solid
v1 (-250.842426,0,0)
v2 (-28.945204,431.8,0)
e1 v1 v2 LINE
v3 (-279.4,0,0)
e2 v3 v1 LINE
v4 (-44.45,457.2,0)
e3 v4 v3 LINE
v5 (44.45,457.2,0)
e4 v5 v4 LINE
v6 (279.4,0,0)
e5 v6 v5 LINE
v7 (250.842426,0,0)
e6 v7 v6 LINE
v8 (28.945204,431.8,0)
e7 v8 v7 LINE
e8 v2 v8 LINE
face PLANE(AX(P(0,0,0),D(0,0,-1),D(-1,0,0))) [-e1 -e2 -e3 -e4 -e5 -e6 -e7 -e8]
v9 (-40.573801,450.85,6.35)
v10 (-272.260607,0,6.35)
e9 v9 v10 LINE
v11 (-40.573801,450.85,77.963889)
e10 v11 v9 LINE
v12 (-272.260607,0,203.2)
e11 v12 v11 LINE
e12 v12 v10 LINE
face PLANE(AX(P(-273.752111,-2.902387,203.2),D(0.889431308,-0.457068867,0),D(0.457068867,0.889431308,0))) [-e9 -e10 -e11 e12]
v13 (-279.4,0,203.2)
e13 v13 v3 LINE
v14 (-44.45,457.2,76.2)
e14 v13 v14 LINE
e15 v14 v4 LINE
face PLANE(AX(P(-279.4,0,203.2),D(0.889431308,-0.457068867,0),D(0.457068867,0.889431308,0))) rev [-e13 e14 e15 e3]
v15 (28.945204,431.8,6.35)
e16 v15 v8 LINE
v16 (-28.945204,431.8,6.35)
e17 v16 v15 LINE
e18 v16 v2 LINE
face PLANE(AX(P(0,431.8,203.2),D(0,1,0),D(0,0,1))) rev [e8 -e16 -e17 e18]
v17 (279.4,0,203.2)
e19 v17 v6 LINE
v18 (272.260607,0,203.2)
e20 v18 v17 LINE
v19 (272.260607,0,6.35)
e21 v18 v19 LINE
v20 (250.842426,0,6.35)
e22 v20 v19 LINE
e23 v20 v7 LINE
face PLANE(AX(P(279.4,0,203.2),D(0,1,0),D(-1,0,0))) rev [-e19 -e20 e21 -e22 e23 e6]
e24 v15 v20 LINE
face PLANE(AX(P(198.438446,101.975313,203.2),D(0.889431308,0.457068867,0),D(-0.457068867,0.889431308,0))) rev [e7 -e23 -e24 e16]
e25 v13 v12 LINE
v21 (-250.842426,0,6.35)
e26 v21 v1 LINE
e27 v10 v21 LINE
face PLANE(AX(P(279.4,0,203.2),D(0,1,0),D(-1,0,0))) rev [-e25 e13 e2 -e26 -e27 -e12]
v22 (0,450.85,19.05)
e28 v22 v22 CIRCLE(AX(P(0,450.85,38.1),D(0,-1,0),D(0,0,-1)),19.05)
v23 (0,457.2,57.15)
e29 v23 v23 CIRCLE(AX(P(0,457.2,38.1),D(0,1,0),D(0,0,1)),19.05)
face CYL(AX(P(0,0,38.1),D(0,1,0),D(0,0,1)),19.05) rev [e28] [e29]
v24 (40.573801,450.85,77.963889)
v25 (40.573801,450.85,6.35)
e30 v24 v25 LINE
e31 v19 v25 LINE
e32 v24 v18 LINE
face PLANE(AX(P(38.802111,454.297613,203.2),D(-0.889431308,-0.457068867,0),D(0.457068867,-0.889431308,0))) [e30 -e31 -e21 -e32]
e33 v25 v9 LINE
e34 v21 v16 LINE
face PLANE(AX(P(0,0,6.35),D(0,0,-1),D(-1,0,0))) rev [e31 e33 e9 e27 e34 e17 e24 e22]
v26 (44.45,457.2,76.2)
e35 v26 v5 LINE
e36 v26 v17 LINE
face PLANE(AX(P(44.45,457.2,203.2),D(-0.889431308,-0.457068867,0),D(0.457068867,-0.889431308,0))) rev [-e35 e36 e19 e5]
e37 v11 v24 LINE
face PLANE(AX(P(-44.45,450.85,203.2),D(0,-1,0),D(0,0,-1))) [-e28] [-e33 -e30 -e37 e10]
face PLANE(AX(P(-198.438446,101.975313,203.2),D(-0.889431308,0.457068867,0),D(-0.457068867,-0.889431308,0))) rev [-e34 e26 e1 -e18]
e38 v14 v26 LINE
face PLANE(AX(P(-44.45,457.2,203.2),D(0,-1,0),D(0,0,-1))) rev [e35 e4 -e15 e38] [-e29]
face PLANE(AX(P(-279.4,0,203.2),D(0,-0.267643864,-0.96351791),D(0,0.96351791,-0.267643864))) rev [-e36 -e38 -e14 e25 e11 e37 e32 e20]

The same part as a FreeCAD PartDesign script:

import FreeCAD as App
import Part
import Sketcher
Q = App.Units.Quantity


def faces_at(feature, points):
    """Names of the faces that lie closest to the given points."""
    faces = feature.Shape.Faces
    near = lambda p: min(range(len(faces)), key=lambda i: faces[i].distToShape(Part.Vertex(*p))[0])
    return sorted({f"Face{near(p) + 1}" for p in points})

doc = App.newDocument("Part")
params = doc.addObject("Spreadsheet::Sheet", "Params")
for row, (alias, value) in enumerate([
    ("sketch1_width", "22 in"),
    ("sketch1_width2", "3.5 in"),
    ("pad1_length", "8 in"),
    ("sketch2_width", "18 in"),
    ("sketch2_height", "5 in"),
    ("thickness_wall", "0.25 in"),
    ("sketch4_diameter", "1.5 in"),
], start=1):
    params.set(f"A{row}", alias)
    params.set(f"B{row}", "=" + value)
    params.setAlias(f"B{row}", alias)

body = doc.addObject("PartDesign::Body", "Body")

# Sketch on XY plane
sketch1 = body.newObject("Sketcher::SketchObject", "Sketch")
sketch1.AttachmentSupport = (doc.getObject("XY_Plane"), [""])
sketch1.MapMode = "FlatFace"
sketch1.addGeometry([
    Part.LineSegment(App.Vector(-44.45, 457.2, 0), App.Vector(-279.4, 0, 0)),
    Part.LineSegment(App.Vector(-279.4, 0, 0), App.Vector(279.4, 0, 0)),
    Part.LineSegment(App.Vector(279.4, 0, 0), App.Vector(44.45, 457.2, 0)),
    Part.LineSegment(App.Vector(44.45, 457.2, 0), App.Vector(-44.45, 457.2, 0)),
], False)
sketch1.addConstraint([
    Sketcher.Constraint("Coincident", 0, 2, 1, 1),
    Sketcher.Constraint("Coincident", 1, 2, 2, 1),
    Sketcher.Constraint("Coincident", 2, 2, 3, 1),
    Sketcher.Constraint("Coincident", 3, 2, 0, 1),
    Sketcher.Constraint("Horizontal", 1),
    Sketcher.Constraint("Horizontal", 3),
    Sketcher.Constraint("Symmetric", 0, 2, 1, 2, -1, 1),
    Sketcher.Constraint("Equal", 0, 2),
    Sketcher.Constraint("DistanceX", 1, 1, 1, 2, Q("22 in")),
    Sketcher.Constraint("DistanceX", 3, 2, 3, 1, Q("3.5 in")),
    Sketcher.Constraint("DistanceY", -1, 1, 2, 2, Q("18 in")),
])
sketch1.setExpression("Constraints[8]", "Params.sketch1_width")
sketch1.setExpression("Constraints[9]", "Params.sketch1_width2")
pad1 = body.newObject("PartDesign::Pad", "Pad")
pad1.Profile = sketch1
pad1.setExpression("Length", "Params.pad1_length")

# Sketch on YZ plane
sketch2 = body.newObject("Sketcher::SketchObject", "Sketch001")
sketch2.AttachmentSupport = (doc.getObject("YZ_Plane"), [""])
sketch2.MapMode = "FlatFace"
sketch2.addGeometry([
    Part.LineSegment(App.Vector(0, 203.2, 0), App.Vector(457.2, 76.2, 0)),
    Part.LineSegment(App.Vector(457.2, 76.2, 0), App.Vector(457.2, 203.2, 0)),
    Part.LineSegment(App.Vector(457.2, 203.2, 0), App.Vector(0, 203.2, 0)),
], False)
sketch2.addConstraint([
    Sketcher.Constraint("Coincident", 0, 2, 1, 1),
    Sketcher.Constraint("Coincident", 1, 2, 2, 1),
    Sketcher.Constraint("Coincident", 2, 2, 0, 1),
    Sketcher.Constraint("Vertical", 1),
    Sketcher.Constraint("Horizontal", 2),
    Sketcher.Constraint("PointOnObject", 2, 2, -2),
    Sketcher.Constraint("DistanceX", 2, 2, 2, 1, Q("18 in")),
    Sketcher.Constraint("DistanceY", 1, 1, 1, 2, Q("5 in")),
    Sketcher.Constraint("DistanceY", -1, 1, 0, 2, Q("3 in")),
])
sketch2.setExpression("Constraints[6]", "Params.sketch2_width")
sketch2.setExpression("Constraints[7]", "Params.sketch2_height")
pocket1 = body.newObject("PartDesign::Pocket", "Pocket")
pocket1.Profile = sketch2
pocket1.Type = "ThroughAll"
pocket1.Midplane = True
doc.recompute()

thickness = body.newObject("PartDesign::Thickness", "Thickness")
thickness.Base = (pocket1, faces_at(pocket1, [(0, 228.6, 139.7), (0, 0, 101.6)]))
thickness.setExpression("Value", "Params.thickness_wall")
thickness.Reversed = True
thickness.Join = "Intersection"

# Sketch on XY plane
sketch3 = body.newObject("Sketcher::SketchObject", "Sketch002")
sketch3.AttachmentSupport = (doc.getObject("XY_Plane"), [""])
sketch3.MapMode = "FlatFace"
sketch3.addGeometry([
    Part.LineSegment(App.Vector(-250.842426, 0, 0), App.Vector(-28.945204, 431.8, 0)),
    Part.LineSegment(App.Vector(-28.945204, 431.8, 0), App.Vector(28.945204, 431.8, 0)),
    Part.LineSegment(App.Vector(28.945204, 431.8, 0), App.Vector(250.842426, 0, 0)),
    Part.LineSegment(App.Vector(250.842426, 0, 0), App.Vector(-250.842426, 0, 0)),
], False)
sketch3.addConstraint([
    Sketcher.Constraint("Coincident", 0, 2, 1, 1),
    Sketcher.Constraint("Coincident", 1, 2, 2, 1),
    Sketcher.Constraint("Coincident", 2, 2, 3, 1),
    Sketcher.Constraint("Coincident", 3, 2, 0, 1),
    Sketcher.Constraint("Horizontal", 1),
    Sketcher.Constraint("Horizontal", 3),
    Sketcher.Constraint("Symmetric", 2, 2, 3, 2, -1, 1),
    Sketcher.Constraint("Equal", 0, 2),
    Sketcher.Constraint("DistanceY", -1, 1, 0, 2, Q("17 in")),
    Sketcher.Constraint("DistanceX", 1, 1, 1, 2, 57.890408),
    Sketcher.Constraint("Distance", 0, 485.478751),
])
pocket2 = body.newObject("PartDesign::Pocket", "Pocket001")
pocket2.Profile = sketch3
pocket2.Type = "ThroughAll"
pocket2.Reversed = True

# Sketch on XZ plane
sketch4 = body.newObject("Sketcher::SketchObject", "Sketch003")
sketch4.AttachmentSupport = (doc.getObject("XZ_Plane"), [""])
sketch4.MapMode = "FlatFace"
sketch4.AttachmentOffset = App.Placement(App.Vector(0, 0, -18 * 25.4), App.Rotation())
sketch4.addGeometry(Part.Circle(App.Vector(0, 38.1, 0), App.Vector(0, 0, 1), 19.05), False)
sketch4.addConstraint([
    Sketcher.Constraint("PointOnObject", 0, 3, -2),
    Sketcher.Constraint("Diameter", 0, Q("1.5 in")),
    Sketcher.Constraint("DistanceY", -1, 1, 0, 3, Q("1.5 in")),
])
sketch4.setExpression("Constraints[1]", "Params.sketch4_diameter")
pocket3 = body.newObject("PartDesign::Pocket", "Pocket002")
pocket3.Profile = sketch4
pocket3.Type = "ThroughAll"
pocket3.Reversed = True

doc.recompute()
